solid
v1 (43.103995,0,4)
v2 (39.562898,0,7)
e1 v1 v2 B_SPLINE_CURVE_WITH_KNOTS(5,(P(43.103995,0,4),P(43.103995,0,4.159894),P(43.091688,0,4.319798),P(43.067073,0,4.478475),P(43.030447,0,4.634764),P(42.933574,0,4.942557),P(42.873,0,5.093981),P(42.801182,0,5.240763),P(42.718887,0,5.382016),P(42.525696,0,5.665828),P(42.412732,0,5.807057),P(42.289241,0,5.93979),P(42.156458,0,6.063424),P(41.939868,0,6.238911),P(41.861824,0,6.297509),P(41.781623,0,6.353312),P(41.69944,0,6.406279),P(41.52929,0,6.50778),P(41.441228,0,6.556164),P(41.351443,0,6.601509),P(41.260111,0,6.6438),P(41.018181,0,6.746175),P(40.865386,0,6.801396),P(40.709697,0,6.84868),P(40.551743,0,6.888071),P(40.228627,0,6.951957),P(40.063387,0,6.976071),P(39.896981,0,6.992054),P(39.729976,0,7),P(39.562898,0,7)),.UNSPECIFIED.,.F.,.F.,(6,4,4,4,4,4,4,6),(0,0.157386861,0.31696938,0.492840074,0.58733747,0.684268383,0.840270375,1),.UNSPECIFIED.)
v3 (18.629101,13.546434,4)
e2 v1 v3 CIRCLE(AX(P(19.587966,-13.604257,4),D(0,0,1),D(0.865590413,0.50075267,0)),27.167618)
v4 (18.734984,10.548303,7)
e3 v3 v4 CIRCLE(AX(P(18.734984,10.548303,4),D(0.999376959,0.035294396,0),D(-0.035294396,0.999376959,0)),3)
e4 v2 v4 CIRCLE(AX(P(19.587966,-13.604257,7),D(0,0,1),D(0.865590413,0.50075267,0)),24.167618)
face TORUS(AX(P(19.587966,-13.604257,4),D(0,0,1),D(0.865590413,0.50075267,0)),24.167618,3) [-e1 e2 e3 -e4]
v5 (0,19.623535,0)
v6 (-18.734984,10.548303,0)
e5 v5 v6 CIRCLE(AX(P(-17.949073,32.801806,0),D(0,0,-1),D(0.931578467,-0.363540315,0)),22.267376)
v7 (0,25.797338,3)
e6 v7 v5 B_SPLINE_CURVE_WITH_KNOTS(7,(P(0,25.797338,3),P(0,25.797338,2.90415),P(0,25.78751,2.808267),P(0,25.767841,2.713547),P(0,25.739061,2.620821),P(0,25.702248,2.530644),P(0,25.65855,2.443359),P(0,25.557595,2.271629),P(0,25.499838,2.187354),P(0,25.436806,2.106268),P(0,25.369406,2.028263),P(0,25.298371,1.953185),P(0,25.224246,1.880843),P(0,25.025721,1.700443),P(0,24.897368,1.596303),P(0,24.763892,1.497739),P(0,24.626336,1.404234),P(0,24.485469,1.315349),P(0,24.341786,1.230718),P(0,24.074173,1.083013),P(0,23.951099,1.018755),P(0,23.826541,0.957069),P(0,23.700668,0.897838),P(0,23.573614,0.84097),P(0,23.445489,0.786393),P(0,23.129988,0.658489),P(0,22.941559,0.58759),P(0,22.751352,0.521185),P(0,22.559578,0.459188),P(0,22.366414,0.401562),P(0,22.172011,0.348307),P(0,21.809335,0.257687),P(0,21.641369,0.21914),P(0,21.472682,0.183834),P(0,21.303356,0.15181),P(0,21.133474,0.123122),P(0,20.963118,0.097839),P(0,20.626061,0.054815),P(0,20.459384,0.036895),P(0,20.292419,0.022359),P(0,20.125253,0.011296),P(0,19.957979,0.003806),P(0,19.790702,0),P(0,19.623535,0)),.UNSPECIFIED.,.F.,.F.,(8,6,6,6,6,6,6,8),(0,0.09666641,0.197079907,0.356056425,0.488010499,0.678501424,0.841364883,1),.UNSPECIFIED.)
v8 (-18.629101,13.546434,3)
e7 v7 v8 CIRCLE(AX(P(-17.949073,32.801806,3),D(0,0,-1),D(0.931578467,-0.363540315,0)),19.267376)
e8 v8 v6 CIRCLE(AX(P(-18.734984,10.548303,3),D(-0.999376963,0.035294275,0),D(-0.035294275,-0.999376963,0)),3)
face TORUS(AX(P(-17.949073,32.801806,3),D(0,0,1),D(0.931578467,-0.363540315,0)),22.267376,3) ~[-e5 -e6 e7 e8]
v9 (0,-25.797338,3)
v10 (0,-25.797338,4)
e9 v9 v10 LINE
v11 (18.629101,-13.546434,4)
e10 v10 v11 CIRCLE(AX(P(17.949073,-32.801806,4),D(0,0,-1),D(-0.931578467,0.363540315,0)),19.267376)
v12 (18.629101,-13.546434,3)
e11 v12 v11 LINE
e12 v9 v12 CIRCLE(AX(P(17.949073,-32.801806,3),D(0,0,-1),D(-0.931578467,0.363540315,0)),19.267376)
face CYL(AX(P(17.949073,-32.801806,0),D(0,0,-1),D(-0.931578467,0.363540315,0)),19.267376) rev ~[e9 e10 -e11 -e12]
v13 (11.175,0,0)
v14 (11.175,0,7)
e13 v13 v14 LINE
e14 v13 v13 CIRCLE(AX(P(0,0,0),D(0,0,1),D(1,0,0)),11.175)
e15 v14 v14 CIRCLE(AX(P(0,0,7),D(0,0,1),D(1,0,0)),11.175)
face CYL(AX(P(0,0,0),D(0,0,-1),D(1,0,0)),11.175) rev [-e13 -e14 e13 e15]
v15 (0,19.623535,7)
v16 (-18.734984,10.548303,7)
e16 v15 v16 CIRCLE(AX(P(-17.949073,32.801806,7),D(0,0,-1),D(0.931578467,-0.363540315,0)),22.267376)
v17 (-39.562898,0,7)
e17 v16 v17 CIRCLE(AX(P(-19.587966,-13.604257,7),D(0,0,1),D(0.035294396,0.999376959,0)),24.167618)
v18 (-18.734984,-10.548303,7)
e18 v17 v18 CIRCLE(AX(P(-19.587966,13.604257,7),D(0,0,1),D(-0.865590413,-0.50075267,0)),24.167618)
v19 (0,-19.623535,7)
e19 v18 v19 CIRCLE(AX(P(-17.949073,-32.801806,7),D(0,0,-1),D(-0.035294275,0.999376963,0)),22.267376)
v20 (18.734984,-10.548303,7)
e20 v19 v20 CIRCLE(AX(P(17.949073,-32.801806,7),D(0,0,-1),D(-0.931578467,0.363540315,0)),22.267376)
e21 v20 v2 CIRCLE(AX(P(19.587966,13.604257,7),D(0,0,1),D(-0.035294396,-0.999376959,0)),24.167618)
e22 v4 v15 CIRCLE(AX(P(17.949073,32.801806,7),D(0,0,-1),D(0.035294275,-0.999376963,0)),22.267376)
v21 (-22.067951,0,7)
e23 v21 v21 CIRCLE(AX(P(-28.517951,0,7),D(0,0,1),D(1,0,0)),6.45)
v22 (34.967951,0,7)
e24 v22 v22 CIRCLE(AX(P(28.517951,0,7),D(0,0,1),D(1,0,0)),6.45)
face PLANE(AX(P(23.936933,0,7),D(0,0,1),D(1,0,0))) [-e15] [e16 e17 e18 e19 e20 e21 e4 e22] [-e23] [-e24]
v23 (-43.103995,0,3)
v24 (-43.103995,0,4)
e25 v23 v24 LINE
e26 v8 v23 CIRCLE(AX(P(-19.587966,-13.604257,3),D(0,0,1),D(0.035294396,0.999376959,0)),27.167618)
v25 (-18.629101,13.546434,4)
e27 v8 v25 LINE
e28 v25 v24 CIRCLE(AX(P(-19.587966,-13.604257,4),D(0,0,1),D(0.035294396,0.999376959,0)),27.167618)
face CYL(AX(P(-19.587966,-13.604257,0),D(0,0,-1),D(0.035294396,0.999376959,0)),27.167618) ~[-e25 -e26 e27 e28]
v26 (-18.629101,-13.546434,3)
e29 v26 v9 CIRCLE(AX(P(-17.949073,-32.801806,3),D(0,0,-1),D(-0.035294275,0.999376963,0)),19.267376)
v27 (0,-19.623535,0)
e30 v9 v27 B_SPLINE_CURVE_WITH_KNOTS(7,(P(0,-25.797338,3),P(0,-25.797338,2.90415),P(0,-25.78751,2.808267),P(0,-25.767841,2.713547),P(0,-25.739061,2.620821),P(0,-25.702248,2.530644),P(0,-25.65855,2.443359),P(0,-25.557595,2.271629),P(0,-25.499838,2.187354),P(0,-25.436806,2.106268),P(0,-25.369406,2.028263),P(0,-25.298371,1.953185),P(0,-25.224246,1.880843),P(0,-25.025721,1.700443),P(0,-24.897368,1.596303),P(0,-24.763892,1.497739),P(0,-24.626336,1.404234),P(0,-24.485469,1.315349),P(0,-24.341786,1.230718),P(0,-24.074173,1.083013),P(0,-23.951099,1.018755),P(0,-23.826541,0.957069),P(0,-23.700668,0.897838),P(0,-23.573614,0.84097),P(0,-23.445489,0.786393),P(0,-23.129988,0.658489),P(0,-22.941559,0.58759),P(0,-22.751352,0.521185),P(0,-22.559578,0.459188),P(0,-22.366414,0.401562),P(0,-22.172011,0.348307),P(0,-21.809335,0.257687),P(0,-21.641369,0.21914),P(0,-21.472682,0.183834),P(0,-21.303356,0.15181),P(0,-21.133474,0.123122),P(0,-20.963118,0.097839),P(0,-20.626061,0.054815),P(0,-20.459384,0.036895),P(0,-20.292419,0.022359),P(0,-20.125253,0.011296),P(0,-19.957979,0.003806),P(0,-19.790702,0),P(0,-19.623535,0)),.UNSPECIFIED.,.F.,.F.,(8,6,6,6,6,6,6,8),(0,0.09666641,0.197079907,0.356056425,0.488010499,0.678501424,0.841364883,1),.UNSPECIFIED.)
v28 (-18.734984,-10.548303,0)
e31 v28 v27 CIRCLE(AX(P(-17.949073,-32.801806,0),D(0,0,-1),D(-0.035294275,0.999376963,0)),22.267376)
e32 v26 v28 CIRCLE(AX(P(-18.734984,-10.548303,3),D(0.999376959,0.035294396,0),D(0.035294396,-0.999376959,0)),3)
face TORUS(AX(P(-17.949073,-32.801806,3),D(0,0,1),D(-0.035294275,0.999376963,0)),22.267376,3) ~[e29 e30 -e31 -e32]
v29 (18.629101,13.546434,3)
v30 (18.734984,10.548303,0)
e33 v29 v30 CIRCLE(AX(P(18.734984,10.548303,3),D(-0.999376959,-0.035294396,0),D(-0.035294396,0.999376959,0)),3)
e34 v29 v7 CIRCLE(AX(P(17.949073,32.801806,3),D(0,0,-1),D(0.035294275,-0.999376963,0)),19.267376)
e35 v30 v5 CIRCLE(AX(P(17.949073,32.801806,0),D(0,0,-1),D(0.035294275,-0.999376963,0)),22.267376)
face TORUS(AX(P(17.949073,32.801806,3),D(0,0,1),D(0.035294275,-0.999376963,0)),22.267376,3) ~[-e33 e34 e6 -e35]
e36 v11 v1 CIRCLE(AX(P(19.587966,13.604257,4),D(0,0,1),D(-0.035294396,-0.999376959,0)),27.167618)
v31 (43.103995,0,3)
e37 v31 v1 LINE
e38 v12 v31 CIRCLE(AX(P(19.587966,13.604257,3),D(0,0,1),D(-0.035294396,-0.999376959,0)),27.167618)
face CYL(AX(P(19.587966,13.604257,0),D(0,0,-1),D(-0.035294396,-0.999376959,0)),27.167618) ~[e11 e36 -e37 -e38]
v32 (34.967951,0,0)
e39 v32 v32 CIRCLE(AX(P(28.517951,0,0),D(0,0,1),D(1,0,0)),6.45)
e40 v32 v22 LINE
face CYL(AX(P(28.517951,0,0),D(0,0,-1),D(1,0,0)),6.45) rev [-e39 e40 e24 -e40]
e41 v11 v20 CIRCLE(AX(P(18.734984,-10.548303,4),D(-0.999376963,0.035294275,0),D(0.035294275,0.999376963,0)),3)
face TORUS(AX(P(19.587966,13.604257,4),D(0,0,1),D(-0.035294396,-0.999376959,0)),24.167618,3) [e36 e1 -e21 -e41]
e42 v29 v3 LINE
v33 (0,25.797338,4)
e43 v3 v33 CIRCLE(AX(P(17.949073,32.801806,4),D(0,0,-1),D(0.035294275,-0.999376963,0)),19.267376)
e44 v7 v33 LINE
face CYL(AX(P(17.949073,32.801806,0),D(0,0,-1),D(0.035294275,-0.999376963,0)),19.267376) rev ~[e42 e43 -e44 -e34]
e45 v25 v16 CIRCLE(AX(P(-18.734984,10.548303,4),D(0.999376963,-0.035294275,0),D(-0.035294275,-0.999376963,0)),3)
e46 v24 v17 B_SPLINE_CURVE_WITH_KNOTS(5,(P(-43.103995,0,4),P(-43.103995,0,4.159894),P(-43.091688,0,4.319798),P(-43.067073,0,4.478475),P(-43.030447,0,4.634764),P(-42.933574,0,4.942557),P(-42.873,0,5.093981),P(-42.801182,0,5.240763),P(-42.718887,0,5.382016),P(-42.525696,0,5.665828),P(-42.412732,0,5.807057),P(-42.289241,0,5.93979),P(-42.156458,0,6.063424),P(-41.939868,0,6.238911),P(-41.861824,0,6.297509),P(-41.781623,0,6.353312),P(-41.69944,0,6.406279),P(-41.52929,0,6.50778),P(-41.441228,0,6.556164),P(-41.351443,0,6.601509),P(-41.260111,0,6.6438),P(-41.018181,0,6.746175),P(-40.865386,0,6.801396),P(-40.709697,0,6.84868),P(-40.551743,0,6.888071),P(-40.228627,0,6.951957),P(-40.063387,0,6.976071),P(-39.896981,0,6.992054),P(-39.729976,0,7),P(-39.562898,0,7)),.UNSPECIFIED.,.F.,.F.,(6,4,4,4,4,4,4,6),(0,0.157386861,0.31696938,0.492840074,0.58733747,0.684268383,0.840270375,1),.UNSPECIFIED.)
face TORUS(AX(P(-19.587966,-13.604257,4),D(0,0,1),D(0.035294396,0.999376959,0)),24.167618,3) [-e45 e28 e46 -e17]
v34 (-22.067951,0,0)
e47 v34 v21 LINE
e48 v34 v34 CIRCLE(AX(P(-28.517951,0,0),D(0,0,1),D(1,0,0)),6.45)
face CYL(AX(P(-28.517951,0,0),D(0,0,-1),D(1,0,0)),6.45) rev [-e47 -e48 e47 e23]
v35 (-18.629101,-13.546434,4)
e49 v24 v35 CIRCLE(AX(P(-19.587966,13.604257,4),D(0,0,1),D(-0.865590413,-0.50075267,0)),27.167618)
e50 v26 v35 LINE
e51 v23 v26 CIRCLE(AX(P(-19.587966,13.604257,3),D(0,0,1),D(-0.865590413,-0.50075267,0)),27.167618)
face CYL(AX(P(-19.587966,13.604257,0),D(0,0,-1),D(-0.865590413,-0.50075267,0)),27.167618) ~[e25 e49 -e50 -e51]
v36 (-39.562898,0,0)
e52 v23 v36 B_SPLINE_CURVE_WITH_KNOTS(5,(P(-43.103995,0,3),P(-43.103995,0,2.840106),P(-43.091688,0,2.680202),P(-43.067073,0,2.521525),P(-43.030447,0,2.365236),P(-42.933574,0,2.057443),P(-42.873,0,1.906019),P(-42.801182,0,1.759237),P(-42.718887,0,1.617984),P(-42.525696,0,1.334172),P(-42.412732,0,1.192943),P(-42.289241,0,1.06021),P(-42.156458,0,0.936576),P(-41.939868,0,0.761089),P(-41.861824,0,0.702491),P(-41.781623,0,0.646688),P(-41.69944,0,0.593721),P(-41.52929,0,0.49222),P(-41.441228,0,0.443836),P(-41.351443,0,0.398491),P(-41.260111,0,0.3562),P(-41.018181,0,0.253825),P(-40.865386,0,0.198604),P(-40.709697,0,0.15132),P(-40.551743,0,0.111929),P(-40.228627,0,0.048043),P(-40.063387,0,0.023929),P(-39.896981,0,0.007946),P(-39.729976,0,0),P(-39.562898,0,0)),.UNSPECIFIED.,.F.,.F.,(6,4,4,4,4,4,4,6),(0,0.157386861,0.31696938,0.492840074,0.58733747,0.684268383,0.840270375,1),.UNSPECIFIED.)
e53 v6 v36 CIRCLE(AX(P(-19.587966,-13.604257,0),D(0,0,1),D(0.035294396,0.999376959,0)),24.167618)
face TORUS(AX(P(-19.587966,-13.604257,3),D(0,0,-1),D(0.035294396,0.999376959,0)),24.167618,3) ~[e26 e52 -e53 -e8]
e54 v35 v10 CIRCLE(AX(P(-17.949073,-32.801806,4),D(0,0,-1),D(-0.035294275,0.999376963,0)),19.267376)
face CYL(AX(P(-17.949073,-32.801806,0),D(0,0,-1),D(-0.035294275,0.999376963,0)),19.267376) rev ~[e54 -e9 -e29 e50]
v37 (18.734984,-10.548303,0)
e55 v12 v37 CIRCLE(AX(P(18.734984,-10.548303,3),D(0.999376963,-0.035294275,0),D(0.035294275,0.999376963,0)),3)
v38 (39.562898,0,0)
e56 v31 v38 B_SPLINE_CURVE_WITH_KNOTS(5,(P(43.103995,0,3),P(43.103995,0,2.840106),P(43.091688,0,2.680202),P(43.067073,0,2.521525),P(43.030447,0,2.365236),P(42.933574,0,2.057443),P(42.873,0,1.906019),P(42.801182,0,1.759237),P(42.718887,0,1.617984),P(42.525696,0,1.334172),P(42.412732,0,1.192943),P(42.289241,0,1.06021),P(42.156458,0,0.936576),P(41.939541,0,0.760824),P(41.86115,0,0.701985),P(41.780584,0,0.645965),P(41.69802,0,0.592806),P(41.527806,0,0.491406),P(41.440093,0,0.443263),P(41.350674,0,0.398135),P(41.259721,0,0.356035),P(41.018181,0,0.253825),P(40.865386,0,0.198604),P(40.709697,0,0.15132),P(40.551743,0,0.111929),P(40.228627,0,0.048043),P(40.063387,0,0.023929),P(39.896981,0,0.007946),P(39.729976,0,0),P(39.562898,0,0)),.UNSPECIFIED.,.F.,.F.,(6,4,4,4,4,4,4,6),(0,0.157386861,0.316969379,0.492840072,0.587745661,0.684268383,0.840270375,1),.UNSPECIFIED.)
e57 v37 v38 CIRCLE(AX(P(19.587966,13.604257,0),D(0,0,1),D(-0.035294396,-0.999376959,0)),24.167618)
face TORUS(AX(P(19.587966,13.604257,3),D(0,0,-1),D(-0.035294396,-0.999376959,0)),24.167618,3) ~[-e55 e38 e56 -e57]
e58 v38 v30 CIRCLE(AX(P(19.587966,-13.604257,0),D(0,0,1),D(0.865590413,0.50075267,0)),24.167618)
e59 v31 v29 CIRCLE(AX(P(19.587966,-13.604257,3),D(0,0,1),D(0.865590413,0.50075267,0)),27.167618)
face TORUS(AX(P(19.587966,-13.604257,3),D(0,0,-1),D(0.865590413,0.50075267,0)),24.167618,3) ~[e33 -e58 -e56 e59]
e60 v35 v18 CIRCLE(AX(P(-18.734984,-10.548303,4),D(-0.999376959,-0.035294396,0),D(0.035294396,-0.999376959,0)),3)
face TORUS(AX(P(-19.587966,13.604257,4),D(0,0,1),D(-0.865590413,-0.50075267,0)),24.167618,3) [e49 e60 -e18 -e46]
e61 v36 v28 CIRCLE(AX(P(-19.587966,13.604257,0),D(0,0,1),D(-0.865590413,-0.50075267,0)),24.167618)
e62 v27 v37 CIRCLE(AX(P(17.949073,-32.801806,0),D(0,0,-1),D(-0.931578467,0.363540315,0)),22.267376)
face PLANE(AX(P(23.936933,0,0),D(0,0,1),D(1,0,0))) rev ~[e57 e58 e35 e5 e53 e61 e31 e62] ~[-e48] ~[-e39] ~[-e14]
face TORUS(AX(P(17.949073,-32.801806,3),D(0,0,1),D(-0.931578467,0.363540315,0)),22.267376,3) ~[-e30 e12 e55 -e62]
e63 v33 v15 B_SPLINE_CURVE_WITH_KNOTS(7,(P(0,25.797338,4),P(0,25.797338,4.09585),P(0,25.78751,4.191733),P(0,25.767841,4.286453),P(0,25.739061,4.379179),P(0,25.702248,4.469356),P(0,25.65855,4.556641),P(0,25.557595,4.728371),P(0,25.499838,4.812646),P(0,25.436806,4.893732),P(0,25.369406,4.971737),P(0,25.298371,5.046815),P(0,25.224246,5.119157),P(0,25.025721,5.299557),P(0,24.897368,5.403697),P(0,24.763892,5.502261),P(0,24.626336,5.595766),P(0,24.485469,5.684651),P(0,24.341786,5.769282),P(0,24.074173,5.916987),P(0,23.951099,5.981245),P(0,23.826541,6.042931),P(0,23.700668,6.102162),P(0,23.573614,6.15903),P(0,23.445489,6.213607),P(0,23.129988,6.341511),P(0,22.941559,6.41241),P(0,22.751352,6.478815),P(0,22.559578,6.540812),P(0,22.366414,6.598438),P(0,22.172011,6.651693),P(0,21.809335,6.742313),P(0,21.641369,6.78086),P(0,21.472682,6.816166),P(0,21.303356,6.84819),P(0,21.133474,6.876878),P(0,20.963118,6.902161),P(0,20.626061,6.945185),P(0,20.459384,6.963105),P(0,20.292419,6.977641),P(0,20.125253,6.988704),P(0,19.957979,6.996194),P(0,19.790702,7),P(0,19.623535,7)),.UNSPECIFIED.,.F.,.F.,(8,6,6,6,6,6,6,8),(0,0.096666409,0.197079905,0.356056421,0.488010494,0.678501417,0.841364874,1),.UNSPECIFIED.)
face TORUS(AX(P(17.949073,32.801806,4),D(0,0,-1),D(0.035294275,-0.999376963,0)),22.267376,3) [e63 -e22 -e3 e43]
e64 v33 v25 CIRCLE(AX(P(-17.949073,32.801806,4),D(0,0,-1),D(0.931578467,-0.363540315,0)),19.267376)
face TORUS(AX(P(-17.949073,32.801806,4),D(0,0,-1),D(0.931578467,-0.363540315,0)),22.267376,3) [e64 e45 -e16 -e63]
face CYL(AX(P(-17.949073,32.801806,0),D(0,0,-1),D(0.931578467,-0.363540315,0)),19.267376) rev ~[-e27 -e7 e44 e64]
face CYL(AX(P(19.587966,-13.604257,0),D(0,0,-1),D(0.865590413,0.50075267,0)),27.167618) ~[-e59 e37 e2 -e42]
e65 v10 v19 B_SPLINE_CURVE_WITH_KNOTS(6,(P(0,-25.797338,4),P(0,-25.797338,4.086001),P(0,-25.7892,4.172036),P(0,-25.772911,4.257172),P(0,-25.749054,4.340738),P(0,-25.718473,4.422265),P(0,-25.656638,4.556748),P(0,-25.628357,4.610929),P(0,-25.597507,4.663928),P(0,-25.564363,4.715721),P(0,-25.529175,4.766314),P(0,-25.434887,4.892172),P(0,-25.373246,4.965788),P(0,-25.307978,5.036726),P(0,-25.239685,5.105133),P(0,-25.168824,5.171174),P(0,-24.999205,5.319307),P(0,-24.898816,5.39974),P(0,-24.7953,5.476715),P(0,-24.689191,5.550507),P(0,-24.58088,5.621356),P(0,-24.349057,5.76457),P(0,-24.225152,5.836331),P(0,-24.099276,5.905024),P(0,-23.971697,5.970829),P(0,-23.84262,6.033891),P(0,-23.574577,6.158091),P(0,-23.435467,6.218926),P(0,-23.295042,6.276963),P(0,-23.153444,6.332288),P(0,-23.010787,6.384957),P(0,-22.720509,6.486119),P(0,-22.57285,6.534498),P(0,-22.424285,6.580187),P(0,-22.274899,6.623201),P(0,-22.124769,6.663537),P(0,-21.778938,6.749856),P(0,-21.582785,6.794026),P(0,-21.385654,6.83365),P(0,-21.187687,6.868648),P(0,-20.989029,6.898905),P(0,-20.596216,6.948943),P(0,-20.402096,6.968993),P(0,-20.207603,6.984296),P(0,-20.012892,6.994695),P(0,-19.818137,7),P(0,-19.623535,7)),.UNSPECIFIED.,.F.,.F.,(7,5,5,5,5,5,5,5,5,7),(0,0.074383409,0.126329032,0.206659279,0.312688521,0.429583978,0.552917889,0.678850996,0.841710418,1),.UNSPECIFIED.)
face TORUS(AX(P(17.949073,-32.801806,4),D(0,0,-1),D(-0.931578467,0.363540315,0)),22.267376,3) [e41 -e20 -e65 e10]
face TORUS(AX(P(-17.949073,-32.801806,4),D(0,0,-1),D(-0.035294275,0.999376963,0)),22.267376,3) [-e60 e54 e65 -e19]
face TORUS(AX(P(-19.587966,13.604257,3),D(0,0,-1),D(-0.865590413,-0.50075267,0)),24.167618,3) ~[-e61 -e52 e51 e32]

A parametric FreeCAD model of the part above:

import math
import FreeCAD as App
import Part
import Sketcher
from FreeCAD import Vector


def edges_at(feature, points):
    """Names of the edges that pass closest to the given points."""
    edges = feature.Shape.Edges
    near = lambda p: min(range(len(edges)), key=lambda i: edges[i].distToShape(Part.Vertex(*p))[0])
    return sorted({f"Edge{near(p) + 1}" for p in points})

doc = App.newDocument("Part")
body = doc.addObject("PartDesign::Body", "Body")

# Sketch on XY plane
sketch1 = body.newObject("Sketcher::SketchObject", "Sketch")
sketch1.AttachmentSupport = (doc.getObject("XY_Plane"), [""])
sketch1.MapMode = "FlatFace"
sketch1.addGeometry([
    Part.ArcOfCircle(Part.Circle(Vector(-17.949073, -32.801806, 0), Vector(0, 0, 1), 19.267376), math.radians(21.317779), math.radians(92.022633)),  # 0
    Part.ArcOfCircle(Part.Circle(Vector(17.949073, -32.801806, 0), Vector(0, 0, 1), 19.267376), math.radians(87.977367), math.radians(158.682221)),  # 1
    Part.ArcOfCircle(Part.Circle(Vector(19.587966, 13.604257, 0), Vector(0, 0, 1), 27.167618), math.radians(-92.02264), math.radians(-30.049809)),  # 2
    Part.ArcOfCircle(Part.Circle(Vector(19.587966, -13.604257, 0), Vector(0, 0, 1), 27.167618), math.radians(30.049809), math.radians(92.02264)),  # 3
    Part.ArcOfCircle(Part.Circle(Vector(17.949073, 32.801806, 0), Vector(0, 0, 1), 19.267376), math.radians(-158.682221), math.radians(-87.977367)),  # 4
    Part.ArcOfCircle(Part.Circle(Vector(-17.949073, 32.801806, 0), Vector(0, 0, 1), 19.267376), math.radians(-92.022633), math.radians(-21.317779)),  # 5
    Part.ArcOfCircle(Part.Circle(Vector(-19.587966, -13.604257, 0), Vector(0, 0, 1), 27.167618), math.radians(87.97736), math.radians(149.950191)),  # 6
    Part.ArcOfCircle(Part.Circle(Vector(-19.587966, 13.604257, 0), Vector(0, 0, 1), 27.167618), math.radians(-149.950191), math.radians(-87.97736)),  # 7
    Part.Circle(Vector(-28.517951, 0, 0), Vector(0, 0, 1), 6.45),  # 8
    Part.Circle(Vector(0, 0, 0), Vector(0, 0, 1), 11.175),  # 9
    Part.Circle(Vector(28.517951, 0, 0), Vector(0, 0, 1), 6.45),  # 10
], False)
sketch1.addConstraint([
    Sketcher.Constraint("Coincident", 0, 1, 1, 2),
    Sketcher.Constraint("Coincident", 1, 1, 2, 1),
    Sketcher.Constraint("Coincident", 2, 2, 3, 1),
    Sketcher.Constraint("Coincident", 3, 2, 4, 2),
    Sketcher.Constraint("Coincident", 4, 1, 5, 2),
    Sketcher.Constraint("Coincident", 5, 1, 6, 1),
    Sketcher.Constraint("Coincident", 6, 2, 7, 1),
    Sketcher.Constraint("Coincident", 7, 2, 0, 2),
    Sketcher.Constraint("Coincident", 9, 3, -1, 1),
    Sketcher.Constraint("PointOnObject", 8, 3, -1),
    Sketcher.Constraint("PointOnObject", 10, 3, -1),
    Sketcher.Constraint("PointOnObject", 0, 1, -2),
    Sketcher.Constraint("PointOnObject", 2, 2, -1),
    Sketcher.Constraint("PointOnObject", 4, 1, -2),
    Sketcher.Constraint("PointOnObject", 6, 2, -1),
    Sketcher.Constraint("Diameter", 8, 12.9),
    Sketcher.Constraint("Diameter", 10, 12.9),
    Sketcher.Constraint("Diameter", 9, 22.35),
    Sketcher.Constraint("Radius", 0, 19.267376),
    Sketcher.Constraint("Radius", 1, 19.267376),
    Sketcher.Constraint("Radius", 2, 27.167618),
    Sketcher.Constraint("Radius", 3, 27.167618),
    Sketcher.Constraint("Radius", 4, 19.267376),
    Sketcher.Constraint("Radius", 5, 19.267376),
    Sketcher.Constraint("Radius", 6, 27.167618),
    Sketcher.Constraint("Radius", 7, 27.167618),
    Sketcher.Constraint("DistanceX", -1, 1, 1, 1, 18.629101),
    Sketcher.Constraint("DistanceX", -1, 1, 3, 2, 18.629101),
    Sketcher.Constraint("DistanceX", 5, 1, -1, 1, 18.629101),
    Sketcher.Constraint("DistanceX", 7, 2, -1, 1, 18.629101),
    Sketcher.Constraint("DistanceX", 8, 3, -1, 1, 28.517951),
    Sketcher.Constraint("DistanceX", -1, 1, 10, 3, 28.517951),
    Sketcher.Constraint("DistanceX", 0, 3, 2, 3, 37.537039),
    Sketcher.Constraint("DistanceY", 1, 3, 3, 3, 19.197549),
    Sketcher.Constraint("DistanceX", 0, 3, 3, 3, 37.537039),
    Sketcher.Constraint("DistanceY", 0, 3, 3, 3, 19.197549),
    Sketcher.Constraint("DistanceY", 2, 3, 4, 3, 19.197549),
    Sketcher.Constraint("DistanceX", 5, 3, 2, 3, 37.537039),
    Sketcher.Constraint("DistanceY", 0, 3, 6, 3, 19.197549),
    Sketcher.Constraint("DistanceX", 6, 3, 3, 3, 39.175931),
])
pad1 = body.newObject("PartDesign::Pad", "Pad")
pad1.Profile = sketch1
pad1.Length = 7
doc.recompute()

fillet = body.newObject("PartDesign::Fillet", "Fillet")
fillet.Base = (pad1, edges_at(pad1, [
    (7.362, -16.703, 7),
    (32.744, -10.165, 7),
    (32.744, 10.165, 7),
    (7.362, 16.703, 7),
    (-7.362, 16.703, 7),
    (-32.744, -10.165, 7),
    (-7.362, -16.703, 7),
    (-32.744, 10.165, 7),
    (7.362, -16.703, 0),
    (32.744, -10.165, 0),
    (-7.362, -16.703, 0),
    (-32.744, -10.165, 0),
    (-32.744, 10.165, 0),
    (-7.362, 16.703, 0),
    (7.362, 16.703, 0),
    (32.744, 10.165, 0),
]))
fillet.Radius = 3

doc.recompute()
